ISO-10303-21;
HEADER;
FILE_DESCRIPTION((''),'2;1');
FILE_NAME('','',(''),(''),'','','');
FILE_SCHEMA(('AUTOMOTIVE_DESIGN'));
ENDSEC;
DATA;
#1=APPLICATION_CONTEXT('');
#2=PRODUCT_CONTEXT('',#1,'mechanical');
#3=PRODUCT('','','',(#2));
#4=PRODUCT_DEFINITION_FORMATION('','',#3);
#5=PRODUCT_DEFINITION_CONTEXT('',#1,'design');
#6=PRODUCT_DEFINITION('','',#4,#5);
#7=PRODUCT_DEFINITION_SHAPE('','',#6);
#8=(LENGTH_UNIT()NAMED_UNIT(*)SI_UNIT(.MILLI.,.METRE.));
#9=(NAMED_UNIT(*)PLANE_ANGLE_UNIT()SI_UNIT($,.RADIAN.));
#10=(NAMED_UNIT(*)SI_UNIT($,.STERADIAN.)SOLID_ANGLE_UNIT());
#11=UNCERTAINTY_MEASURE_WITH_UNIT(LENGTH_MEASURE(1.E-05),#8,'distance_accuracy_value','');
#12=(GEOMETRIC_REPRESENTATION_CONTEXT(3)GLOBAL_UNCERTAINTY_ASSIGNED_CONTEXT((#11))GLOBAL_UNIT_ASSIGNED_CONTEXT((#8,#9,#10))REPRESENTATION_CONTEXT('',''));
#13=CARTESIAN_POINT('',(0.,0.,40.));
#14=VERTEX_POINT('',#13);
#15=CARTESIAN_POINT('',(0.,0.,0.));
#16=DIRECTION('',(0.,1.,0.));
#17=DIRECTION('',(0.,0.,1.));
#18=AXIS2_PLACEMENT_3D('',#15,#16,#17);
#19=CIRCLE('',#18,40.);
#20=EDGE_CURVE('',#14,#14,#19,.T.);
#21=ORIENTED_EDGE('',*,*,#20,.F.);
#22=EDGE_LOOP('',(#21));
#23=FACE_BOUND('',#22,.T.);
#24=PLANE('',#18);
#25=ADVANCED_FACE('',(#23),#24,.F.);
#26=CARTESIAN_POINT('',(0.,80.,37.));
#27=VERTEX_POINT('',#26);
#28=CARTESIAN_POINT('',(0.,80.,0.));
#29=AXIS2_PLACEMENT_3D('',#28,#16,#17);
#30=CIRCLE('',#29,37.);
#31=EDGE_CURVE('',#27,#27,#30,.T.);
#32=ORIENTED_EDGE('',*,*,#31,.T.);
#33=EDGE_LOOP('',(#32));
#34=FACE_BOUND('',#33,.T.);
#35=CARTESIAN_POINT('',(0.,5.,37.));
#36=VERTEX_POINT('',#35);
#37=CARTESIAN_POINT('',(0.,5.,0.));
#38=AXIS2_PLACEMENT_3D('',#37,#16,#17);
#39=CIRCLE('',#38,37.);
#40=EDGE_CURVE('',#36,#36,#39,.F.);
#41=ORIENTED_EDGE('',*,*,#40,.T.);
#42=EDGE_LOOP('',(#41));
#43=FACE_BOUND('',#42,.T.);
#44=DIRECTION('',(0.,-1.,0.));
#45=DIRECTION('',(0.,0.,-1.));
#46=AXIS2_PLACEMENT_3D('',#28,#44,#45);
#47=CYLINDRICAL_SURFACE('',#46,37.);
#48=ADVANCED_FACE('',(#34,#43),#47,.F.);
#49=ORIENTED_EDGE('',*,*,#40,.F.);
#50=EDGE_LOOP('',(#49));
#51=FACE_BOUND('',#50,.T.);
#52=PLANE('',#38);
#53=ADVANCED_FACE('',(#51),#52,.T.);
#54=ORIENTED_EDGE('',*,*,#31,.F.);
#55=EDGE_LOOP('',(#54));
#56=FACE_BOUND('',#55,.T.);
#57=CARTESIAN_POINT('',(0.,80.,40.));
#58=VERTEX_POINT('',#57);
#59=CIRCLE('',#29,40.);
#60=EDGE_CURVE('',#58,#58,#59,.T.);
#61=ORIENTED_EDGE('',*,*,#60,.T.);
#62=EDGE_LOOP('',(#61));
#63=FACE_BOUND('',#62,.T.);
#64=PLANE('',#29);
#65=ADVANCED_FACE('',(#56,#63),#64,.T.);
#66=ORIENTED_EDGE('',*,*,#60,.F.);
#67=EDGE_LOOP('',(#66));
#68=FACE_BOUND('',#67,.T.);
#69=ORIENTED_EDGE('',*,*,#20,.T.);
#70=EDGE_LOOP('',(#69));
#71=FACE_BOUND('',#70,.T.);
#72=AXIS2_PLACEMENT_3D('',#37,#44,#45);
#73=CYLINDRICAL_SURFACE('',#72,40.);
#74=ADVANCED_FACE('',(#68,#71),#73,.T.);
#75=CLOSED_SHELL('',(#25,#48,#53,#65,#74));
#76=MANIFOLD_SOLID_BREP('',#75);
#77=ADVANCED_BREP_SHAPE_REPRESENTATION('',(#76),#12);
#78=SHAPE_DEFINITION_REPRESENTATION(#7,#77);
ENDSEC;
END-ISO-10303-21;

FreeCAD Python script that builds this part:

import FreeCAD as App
import Part
import Sketcher

doc = App.newDocument("Part")
body = doc.addObject("PartDesign::Body", "Body")

sketch1 = body.newObject("Sketcher::SketchObject", "Sketch")
sketch1.AttachmentSupport = (doc.getObject("XZ_Plane"), [""])
sketch1.MapMode = "FlatFace"
sketch1.addGeometry(Part.Circle(App.Vector(0, 0, 0), App.Vector(0, 0, 1), 40), False)
sketch1.addConstraint(Sketcher.Constraint("Coincident", 0, 3, -1, 1))
sketch1.addConstraint(Sketcher.Constraint("Diameter", 0, 80.0))
pad1 = body.newObject("PartDesign::Pad", "Pad")
pad1.Profile = sketch1
pad1.Length = 5
pad1.Reversed = True

sketch2 = body.newObject("Sketcher::SketchObject", "Sketch001")
sketch2.AttachmentSupport = (doc.getObject("XZ_Plane"), [""])
sketch2.MapMode = "FlatFace"
sketch2.AttachmentOffset = App.Placement(App.Vector(0, 0, -5), App.Rotation())
sketch2.addGeometry(Part.Circle(App.Vector(0, 0, 0), App.Vector(0, 0, 1), 40), False)
sketch2.addGeometry(Part.Circle(App.Vector(0, 0, 0), App.Vector(0, 0, 1), 37), False)
sketch2.addConstraint(Sketcher.Constraint("Coincident", 0, 3, -1, 1))
sketch2.addConstraint(Sketcher.Constraint("Coincident", 1, 3, -1, 1))
sketch2.addConstraint(Sketcher.Constraint("Diameter", 0, 80.0))
sketch2.addConstraint(Sketcher.Constraint("Diameter", 1, 74.0))
pad2 = body.newObject("PartDesign::Pad", "Pad001")
pad2.Profile = sketch2
pad2.Length = 75
pad2.Reversed = True

doc.recompute()
